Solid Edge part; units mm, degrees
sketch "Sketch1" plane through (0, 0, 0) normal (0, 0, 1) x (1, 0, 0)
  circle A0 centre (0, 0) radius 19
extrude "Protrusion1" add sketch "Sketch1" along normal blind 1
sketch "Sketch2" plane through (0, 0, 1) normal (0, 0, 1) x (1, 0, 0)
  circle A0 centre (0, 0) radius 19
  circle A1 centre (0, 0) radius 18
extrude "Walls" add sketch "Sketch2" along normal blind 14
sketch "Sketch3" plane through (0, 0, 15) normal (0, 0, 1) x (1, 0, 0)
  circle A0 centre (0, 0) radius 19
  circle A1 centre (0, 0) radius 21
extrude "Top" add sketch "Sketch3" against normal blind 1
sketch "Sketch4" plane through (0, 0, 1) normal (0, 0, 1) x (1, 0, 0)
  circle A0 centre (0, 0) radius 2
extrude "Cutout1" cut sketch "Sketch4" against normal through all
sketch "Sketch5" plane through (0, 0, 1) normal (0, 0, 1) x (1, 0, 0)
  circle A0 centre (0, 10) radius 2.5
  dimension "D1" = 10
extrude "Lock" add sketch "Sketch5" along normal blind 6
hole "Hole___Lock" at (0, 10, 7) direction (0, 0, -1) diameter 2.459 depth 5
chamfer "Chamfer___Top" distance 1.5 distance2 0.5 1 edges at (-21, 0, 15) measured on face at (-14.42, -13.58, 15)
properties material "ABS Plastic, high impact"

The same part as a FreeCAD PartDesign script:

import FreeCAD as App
import Part
import Sketcher
Q = App.Units.Quantity


def edges_at(feature, points):
    """Names of the edges that pass closest to the given points."""
    edges = feature.Shape.Edges
    near = lambda p: min(range(len(edges)), key=lambda i: edges[i].distToShape(Part.Vertex(*p))[0])
    return sorted({f"Edge{near(p) + 1}" for p in points})

doc = App.newDocument("Part")
body = doc.addObject("PartDesign::Body", "Body")

# Sketch on XY plane
sketch1 = body.newObject("Sketcher::SketchObject", "Sketch")
sketch1.AttachmentSupport = (doc.getObject("XY_Plane"), [""])
sketch1.MapMode = "FlatFace"
sketch1.addGeometry(Part.Circle(App.Vector(0, 0, 0), App.Vector(0, 0, 1), 19), False)
sketch1.addConstraint(Sketcher.Constraint("Coincident", 0, 3, -1, 1))
sketch1.addConstraint(Sketcher.Constraint("Diameter", 0, Q("38 mm")))
pad1 = body.newObject("PartDesign::Pad", "Pad")
pad1.Profile = sketch1
pad1.Length = 1

# Sketch on XY plane
sketch2 = body.newObject("Sketcher::SketchObject", "Sketch001")
sketch2.AttachmentSupport = (doc.getObject("XY_Plane"), [""])
sketch2.MapMode = "FlatFace"
sketch2.AttachmentOffset = App.Placement(App.Vector(0, 0, 1), App.Rotation())
sketch2.addGeometry(Part.Circle(App.Vector(0, 0, 0), App.Vector(0, 0, 1), 19), False)
sketch2.addGeometry(Part.Circle(App.Vector(0, 0, 0), App.Vector(0, 0, 1), 18), False)
sketch2.addConstraint(Sketcher.Constraint("Coincident", 0, 3, -1, 1))
sketch2.addConstraint(Sketcher.Constraint("Coincident", 1, 3, -1, 1))
sketch2.addConstraint(Sketcher.Constraint("Diameter", 0, Q("38 mm")))
sketch2.addConstraint(Sketcher.Constraint("Diameter", 1, Q("36 mm")))
pad2 = body.newObject("PartDesign::Pad", "Pad001")
pad2.Profile = sketch2
pad2.Length = 14

# Sketch on XY plane
sketch3 = body.newObject("Sketcher::SketchObject", "Sketch002")
sketch3.AttachmentSupport = (doc.getObject("XY_Plane"), [""])
sketch3.MapMode = "FlatFace"
sketch3.AttachmentOffset = App.Placement(App.Vector(0, 0, 15), App.Rotation())
sketch3.addGeometry(Part.Circle(App.Vector(0, 0, 0), App.Vector(0, 0, 1), 21), False)
sketch3.addGeometry(Part.Circle(App.Vector(0, 0, 0), App.Vector(0, 0, 1), 19), False)
sketch3.addConstraint(Sketcher.Constraint("Coincident", 0, 3, -1, 1))
sketch3.addConstraint(Sketcher.Constraint("Coincident", 1, 3, -1, 1))
sketch3.addConstraint(Sketcher.Constraint("Diameter", 0, Q("42 mm")))
sketch3.addConstraint(Sketcher.Constraint("Diameter", 1, Q("38 mm")))
pad3 = body.newObject("PartDesign::Pad", "Pad002")
pad3.Profile = sketch3
pad3.Length = 1
pad3.Reversed = True

# Sketch on XY plane
sketch4 = body.newObject("Sketcher::SketchObject", "Sketch003")
sketch4.AttachmentSupport = (doc.getObject("XY_Plane"), [""])
sketch4.MapMode = "FlatFace"
sketch4.AttachmentOffset = App.Placement(App.Vector(0, 0, 1), App.Rotation())
sketch4.addGeometry(Part.Circle(App.Vector(0, 0, 0), App.Vector(0, 0, 1), 2), False)
sketch4.addConstraint(Sketcher.Constraint("Coincident", 0, 3, -1, 1))
sketch4.addConstraint(Sketcher.Constraint("Diameter", 0, Q("4 mm")))
pocket1 = body.newObject("PartDesign::Pocket", "Pocket")
pocket1.Profile = sketch4
pocket1.Type = "ThroughAll"

# Sketch on XY plane
sketch5 = body.newObject("Sketcher::SketchObject", "Sketch004")
sketch5.AttachmentSupport = (doc.getObject("XY_Plane"), [""])
sketch5.MapMode = "FlatFace"
sketch5.AttachmentOffset = App.Placement(App.Vector(0, 0, 1), App.Rotation())
sketch5.addGeometry(Part.Circle(App.Vector(0, 10, 0), App.Vector(0, 0, 1), 2.5), False)
sketch5.addConstraint(Sketcher.Constraint("PointOnObject", 0, 3, -2))
sketch5.addConstraint(Sketcher.Constraint("Diameter", 0, Q("5 mm")))
sketch5.addConstraint(Sketcher.Constraint("DistanceY", -1, 1, 0, 3, Q("10 mm")))
pad4 = body.newObject("PartDesign::Pad", "Pad003")
pad4.Profile = sketch5
pad4.Length = 6

# Sketch on XY plane
sketch6 = body.newObject("Sketcher::SketchObject", "Sketch005")
sketch6.AttachmentSupport = (doc.getObject("XY_Plane"), [""])
sketch6.MapMode = "FlatFace"
sketch6.AttachmentOffset = App.Placement(App.Vector(0, 0, 7), App.Rotation())
sketch6.addGeometry(Part.Circle(App.Vector(0, 10, 0), App.Vector(0, 0, 1), 1.2), False)
sketch6.addConstraint(Sketcher.Constraint("PointOnObject", 0, 3, -2))
sketch6.addConstraint(Sketcher.Constraint("Diameter", 0, Q("2.459 mm")))
sketch6.addConstraint(Sketcher.Constraint("DistanceY", -1, 1, 0, 3, Q("10 mm")))
doc.recompute()
hole = body.newObject("PartDesign::Hole", "Hole")
hole.Profile = sketch6
hole.ThreadType = "None"
hole.Diameter = 2.459
hole.DepthType = "Dimension"
hole.Depth = 5
hole.DrillPoint = "Flat"
doc.recompute()

chamfer = body.newObject("PartDesign::Chamfer", "Chamfer")
chamfer.Base = (hole, edges_at(hole, [(-21, 0, 15)]))
chamfer.ChamferType = "Two distances"
chamfer.Size = 1.5
chamfer.Size2 = 0.5
chamfer.FlipDirection = True

doc.recompute()
